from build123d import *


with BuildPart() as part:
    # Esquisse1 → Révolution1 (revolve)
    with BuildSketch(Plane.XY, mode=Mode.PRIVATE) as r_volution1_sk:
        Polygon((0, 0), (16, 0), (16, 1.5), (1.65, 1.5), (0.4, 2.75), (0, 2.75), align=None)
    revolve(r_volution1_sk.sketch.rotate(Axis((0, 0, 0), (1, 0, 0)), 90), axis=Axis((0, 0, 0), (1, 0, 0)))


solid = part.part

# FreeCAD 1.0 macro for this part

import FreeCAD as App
import Part
import Sketcher
Q = App.Units.Quantity


def add_polygon(sketch, points):
    """Adds a closed chain of lines whose ends are joined by coincident constraints."""
    first, n = sketch.GeometryCount, len(points)
    for a, b in zip(points, points[1:] + points[:1]):
        sketch.addGeometry(Part.LineSegment(App.Vector(*a, 0), App.Vector(*b, 0)), False)
    for i in range(n):
        sketch.addConstraint(Sketcher.Constraint("Coincident", first + i, 2, first + (i + 1) % n, 1))

doc = App.newDocument("Part")
body = doc.addObject("PartDesign::Body", "Body")

# Sketch on XY plane
sketch1 = body.newObject("Sketcher::SketchObject", "Sketch")
sketch1.AttachmentSupport = (doc.getObject("XY_Plane"), [""])
sketch1.MapMode = "FlatFace"
add_polygon(sketch1, [(0, 0), (16, 0), (16, 1.5), (1.65, 1.5), (0.4, 2.75), (0, 2.75)])  # lines 0-5
sketch1.addConstraint(Sketcher.Constraint("Horizontal", 0))
sketch1.addConstraint(Sketcher.Constraint("Vertical", 1))
sketch1.addConstraint(Sketcher.Constraint("Horizontal", 2))
sketch1.addConstraint(Sketcher.Constraint("Horizontal", 4))
sketch1.addConstraint(Sketcher.Constraint("Vertical", 5))
sketch1.addConstraint(Sketcher.Constraint("Coincident", 5, 2, -1, 1))
sketch1.addConstraint(Sketcher.Constraint("DistanceX", 0, 1, 0, 2, 16.0))
sketch1.addConstraint(Sketcher.Constraint("Angle", 3, Q("135 deg")))
sketch1.addConstraint(Sketcher.Constraint("DistanceX", 4, 2, 4, 1, 0.4))
sketch1.addConstraint(Sketcher.Constraint("DistanceY", 1, 1, 1, 2, 1.5))
sketch1.addConstraint(Sketcher.Constraint("DistanceX", 2, 2, 2, 1, 14.35))
revolution = body.newObject("PartDesign::Revolution", "Revolution")
revolution.Profile = sketch1
revolution.ReferenceAxis = (sketch1, ["H_Axis"])
revolution.Angle = 360

doc.recompute()
